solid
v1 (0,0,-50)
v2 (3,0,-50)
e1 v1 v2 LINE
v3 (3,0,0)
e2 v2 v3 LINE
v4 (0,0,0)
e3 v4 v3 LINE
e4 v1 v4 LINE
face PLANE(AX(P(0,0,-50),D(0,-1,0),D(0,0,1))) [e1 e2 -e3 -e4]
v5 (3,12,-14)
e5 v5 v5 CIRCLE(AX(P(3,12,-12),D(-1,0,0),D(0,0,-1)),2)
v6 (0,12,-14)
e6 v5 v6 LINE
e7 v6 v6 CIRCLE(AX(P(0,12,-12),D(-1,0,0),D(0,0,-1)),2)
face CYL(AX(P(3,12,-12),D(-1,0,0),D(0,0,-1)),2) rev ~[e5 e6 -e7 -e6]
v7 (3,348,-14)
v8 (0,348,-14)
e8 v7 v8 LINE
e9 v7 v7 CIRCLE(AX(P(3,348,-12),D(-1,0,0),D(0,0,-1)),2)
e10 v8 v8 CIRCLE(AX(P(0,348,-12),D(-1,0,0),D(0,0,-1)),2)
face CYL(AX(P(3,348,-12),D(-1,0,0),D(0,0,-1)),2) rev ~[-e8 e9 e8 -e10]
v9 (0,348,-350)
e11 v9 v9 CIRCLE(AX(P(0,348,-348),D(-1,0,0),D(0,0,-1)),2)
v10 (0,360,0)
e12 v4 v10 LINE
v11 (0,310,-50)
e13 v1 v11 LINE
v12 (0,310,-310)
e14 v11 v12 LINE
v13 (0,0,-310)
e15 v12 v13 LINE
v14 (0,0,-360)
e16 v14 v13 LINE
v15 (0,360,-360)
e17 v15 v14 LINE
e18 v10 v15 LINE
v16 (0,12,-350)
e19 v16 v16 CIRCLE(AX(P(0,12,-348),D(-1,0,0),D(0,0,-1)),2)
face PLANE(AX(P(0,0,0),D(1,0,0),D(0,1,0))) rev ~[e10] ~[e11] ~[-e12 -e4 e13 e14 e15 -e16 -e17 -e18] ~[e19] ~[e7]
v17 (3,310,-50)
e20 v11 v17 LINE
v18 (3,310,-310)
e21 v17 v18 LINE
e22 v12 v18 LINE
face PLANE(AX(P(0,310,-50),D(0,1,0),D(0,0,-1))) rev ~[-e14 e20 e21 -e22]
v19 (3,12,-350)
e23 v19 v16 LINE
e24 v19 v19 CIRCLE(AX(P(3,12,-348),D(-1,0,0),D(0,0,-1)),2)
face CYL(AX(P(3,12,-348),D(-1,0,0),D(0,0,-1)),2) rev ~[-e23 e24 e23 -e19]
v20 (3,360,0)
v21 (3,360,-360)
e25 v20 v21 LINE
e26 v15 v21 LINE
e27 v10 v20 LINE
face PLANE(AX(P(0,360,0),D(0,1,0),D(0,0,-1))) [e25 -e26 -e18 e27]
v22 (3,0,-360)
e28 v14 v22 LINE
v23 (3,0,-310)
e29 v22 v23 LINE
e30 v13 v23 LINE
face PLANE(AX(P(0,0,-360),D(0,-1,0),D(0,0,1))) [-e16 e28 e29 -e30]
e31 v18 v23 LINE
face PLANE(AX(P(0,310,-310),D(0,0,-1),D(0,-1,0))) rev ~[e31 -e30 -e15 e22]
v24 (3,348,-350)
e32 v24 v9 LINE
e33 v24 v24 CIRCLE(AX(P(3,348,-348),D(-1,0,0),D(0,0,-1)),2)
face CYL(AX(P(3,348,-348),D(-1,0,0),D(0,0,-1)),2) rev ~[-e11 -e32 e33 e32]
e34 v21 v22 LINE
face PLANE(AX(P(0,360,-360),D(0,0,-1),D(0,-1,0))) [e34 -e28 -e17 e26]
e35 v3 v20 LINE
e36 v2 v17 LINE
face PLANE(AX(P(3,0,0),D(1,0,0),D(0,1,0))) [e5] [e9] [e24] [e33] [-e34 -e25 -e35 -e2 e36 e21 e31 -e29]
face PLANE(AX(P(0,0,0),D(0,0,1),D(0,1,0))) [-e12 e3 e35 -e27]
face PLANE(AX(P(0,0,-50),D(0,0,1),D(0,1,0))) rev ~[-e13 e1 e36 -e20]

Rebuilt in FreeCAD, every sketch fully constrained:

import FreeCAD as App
import Part
import Sketcher

V = App.Vector
Q = App.Units.Quantity


def add_polygon(sketch, points):
    """Adds a closed chain of lines whose ends are joined by coincident constraints."""
    first, n = sketch.GeometryCount, len(points)
    for a, b in zip(points, points[1:] + points[:1]):
        sketch.addGeometry(Part.LineSegment(App.Vector(*a, 0), App.Vector(*b, 0)), False)
    for i in range(n):
        sketch.addConstraint(Sketcher.Constraint("Coincident", first + i, 2, first + (i + 1) % n, 1))

doc = App.newDocument("Part")
body = doc.addObject("PartDesign::Body", "Body")

# Sketch on YZ plane
sketch1 = body.newObject("Sketcher::SketchObject", "Sketch")
sketch1.AttachmentSupport = (doc.getObject("YZ_Plane"), [""])
sketch1.MapMode = "FlatFace"
add_polygon(sketch1, [(360, 0), (0, 0), (0, -50), (310, -50), (310, -310), (0, -310), (0, -360), (360, -360)])  # lines 0-7
sketch1.addConstraint([
    Sketcher.Constraint("Horizontal", 0),
    Sketcher.Constraint("Vertical", 1),
    Sketcher.Constraint("Horizontal", 2),
    Sketcher.Constraint("Vertical", 3),
    Sketcher.Constraint("Horizontal", 4),
    Sketcher.Constraint("Vertical", 5),
    Sketcher.Constraint("Horizontal", 6),
    Sketcher.Constraint("Vertical", 7),
    Sketcher.Constraint("Coincident", 0, 2, -1, 1),
    Sketcher.Constraint("PointOnObject", 4, 2, -2),
    Sketcher.Constraint("Equal", 1, 5),
    Sketcher.Constraint("Equal", 6, 7),
    Sketcher.Constraint("DistanceX", 0, 2, 0, 1, Q("360 mm")),
    Sketcher.Constraint("DistanceX", 2, 1, 2, 2, Q("310 mm")),
    Sketcher.Constraint("DistanceY", 3, 2, 3, 1, Q("260 mm")),
])
pad1 = body.newObject("PartDesign::Pad", "Pad")
pad1.Profile = sketch1
pad1.Length = 3

# Sketch on YZ plane
sketch2 = body.newObject("Sketcher::SketchObject", "Sketch001")
sketch2.AttachmentSupport = (doc.getObject("YZ_Plane"), [""])
sketch2.MapMode = "FlatFace"
sketch2.AttachmentOffset = App.Placement(V(0, 0, 3), App.Rotation())
sketch2.addGeometry(Part.Circle(V(348, -12, 0), V(0, 0, 1), 2), False)
sketch2.addConstraint([
    Sketcher.Constraint("Diameter", 0, Q("4 mm")),
    Sketcher.Constraint("DistanceX", -1, 1, 0, 3, Q("348 mm")),
    Sketcher.Constraint("DistanceY", 0, 3, -1, 1, Q("12 mm")),
])
doc.recompute()
hole = body.newObject("PartDesign::Hole", "Hole")
hole.Profile = sketch2
hole.ThreadType = "None"
hole.Diameter = 4
hole.DepthType = "ThroughAll"

# Sketch on YZ plane
sketch3 = body.newObject("Sketcher::SketchObject", "Sketch002")
sketch3.AttachmentSupport = (doc.getObject("YZ_Plane"), [""])
sketch3.MapMode = "FlatFace"
sketch3.AttachmentOffset = App.Placement(V(0, 0, 3), App.Rotation())
sketch3.addGeometry(Part.Circle(V(348, -348, 0), V(0, 0, 1), 2), False)
sketch3.addConstraint([
    Sketcher.Constraint("Diameter", 0, Q("4 mm")),
    Sketcher.Constraint("DistanceX", -1, 1, 0, 3, Q("348 mm")),
    Sketcher.Constraint("DistanceY", 0, 3, -1, 1, Q("348 mm")),
])
doc.recompute()
hole2 = body.newObject("PartDesign::Hole", "Hole001")
hole2.Profile = sketch3
hole2.ThreadType = "None"
hole2.Diameter = 4
hole2.DepthType = "ThroughAll"

# Sketch on YZ plane
sketch4 = body.newObject("Sketcher::SketchObject", "Sketch003")
sketch4.AttachmentSupport = (doc.getObject("YZ_Plane"), [""])
sketch4.MapMode = "FlatFace"
sketch4.AttachmentOffset = App.Placement(V(0, 0, 3), App.Rotation())
sketch4.addGeometry(Part.Circle(V(12, -348, 0), V(0, 0, 1), 2), False)
sketch4.addConstraint([
    Sketcher.Constraint("Diameter", 0, Q("4 mm")),
    Sketcher.Constraint("DistanceX", -1, 1, 0, 3, Q("12 mm")),
    Sketcher.Constraint("DistanceY", 0, 3, -1, 1, Q("348 mm")),
])
doc.recompute()
hole3 = body.newObject("PartDesign::Hole", "Hole002")
hole3.Profile = sketch4
hole3.ThreadType = "None"
hole3.Diameter = 4
hole3.DepthType = "ThroughAll"

# Sketch on YZ plane
sketch5 = body.newObject("Sketcher::SketchObject", "Sketch004")
sketch5.AttachmentSupport = (doc.getObject("YZ_Plane"), [""])
sketch5.MapMode = "FlatFace"
sketch5.AttachmentOffset = App.Placement(V(0, 0, 3), App.Rotation())
sketch5.addGeometry(Part.Circle(V(12, -12, 0), V(0, 0, 1), 2), False)
sketch5.addConstraint([
    Sketcher.Constraint("Diameter", 0, Q("4 mm")),
    Sketcher.Constraint("DistanceX", -1, 1, 0, 3, Q("12 mm")),
    Sketcher.Constraint("DistanceY", 0, 3, -1, 1, Q("12 mm")),
])
doc.recompute()
hole4 = body.newObject("PartDesign::Hole", "Hole003")
hole4.Profile = sketch5
hole4.ThreadType = "None"
hole4.Diameter = 4
hole4.DepthType = "ThroughAll"

doc.recompute()
